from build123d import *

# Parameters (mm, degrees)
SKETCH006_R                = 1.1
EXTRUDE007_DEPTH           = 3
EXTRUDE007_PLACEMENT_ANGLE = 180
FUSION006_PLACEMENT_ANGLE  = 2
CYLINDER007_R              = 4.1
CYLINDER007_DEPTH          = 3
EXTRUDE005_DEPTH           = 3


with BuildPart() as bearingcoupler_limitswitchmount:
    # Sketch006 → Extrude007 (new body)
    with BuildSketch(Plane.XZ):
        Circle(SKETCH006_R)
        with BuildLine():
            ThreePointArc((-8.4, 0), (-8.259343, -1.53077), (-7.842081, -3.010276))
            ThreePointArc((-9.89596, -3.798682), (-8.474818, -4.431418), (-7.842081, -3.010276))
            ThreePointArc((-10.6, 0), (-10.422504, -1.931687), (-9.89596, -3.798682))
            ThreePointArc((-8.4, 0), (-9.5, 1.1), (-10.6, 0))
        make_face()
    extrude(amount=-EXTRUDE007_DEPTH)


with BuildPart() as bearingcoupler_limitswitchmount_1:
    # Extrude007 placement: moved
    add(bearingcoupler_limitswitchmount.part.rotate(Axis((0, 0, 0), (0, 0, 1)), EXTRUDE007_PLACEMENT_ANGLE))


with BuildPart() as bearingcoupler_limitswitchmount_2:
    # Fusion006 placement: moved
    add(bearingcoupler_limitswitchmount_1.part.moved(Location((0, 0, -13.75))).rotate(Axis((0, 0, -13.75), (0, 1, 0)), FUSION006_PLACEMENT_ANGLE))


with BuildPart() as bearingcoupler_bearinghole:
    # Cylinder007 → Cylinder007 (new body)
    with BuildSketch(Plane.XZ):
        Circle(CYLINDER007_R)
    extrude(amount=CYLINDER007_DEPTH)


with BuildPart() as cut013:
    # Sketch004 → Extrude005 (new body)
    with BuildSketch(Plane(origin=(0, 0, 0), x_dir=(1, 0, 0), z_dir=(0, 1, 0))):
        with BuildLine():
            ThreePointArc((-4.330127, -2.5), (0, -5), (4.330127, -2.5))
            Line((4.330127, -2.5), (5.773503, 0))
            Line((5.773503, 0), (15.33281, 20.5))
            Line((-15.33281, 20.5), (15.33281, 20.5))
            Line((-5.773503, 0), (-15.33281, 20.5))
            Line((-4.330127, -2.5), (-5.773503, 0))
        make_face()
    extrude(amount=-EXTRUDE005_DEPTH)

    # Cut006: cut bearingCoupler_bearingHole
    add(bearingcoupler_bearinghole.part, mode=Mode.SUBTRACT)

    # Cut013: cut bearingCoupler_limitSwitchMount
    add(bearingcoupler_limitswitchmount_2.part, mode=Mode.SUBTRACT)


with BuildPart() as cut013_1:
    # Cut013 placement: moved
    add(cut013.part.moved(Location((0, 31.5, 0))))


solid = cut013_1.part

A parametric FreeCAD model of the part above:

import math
import FreeCAD as App
import Part
import Sketcher
from FreeCAD import Vector
Q = App.Units.Quantity

doc = App.newDocument("Part")
params = doc.addObject("Spreadsheet::Sheet", "Params")
for row, (alias, value) in enumerate([
    ("sketch1_diameter", "2.2 mm"),
    ("sketch1_radius", "1.1 mm"),
    ("sketch1_radius2", "10.600001 mm"),
    ("sketch1_radius3", "1.1 mm"),
    ("pad1_length", "3 mm"),
    ("sketch2_diameter", "8.2 mm"),
    ("pad2_length", "3 mm"),
    ("sketch3_radius", "5 mm"),
    ("pad3_length", "3 mm"),
], start=1):
    params.set(f"A{row}", alias)
    params.set(f"B{row}", "=" + value)
    params.setAlias(f"B{row}", alias)

body = doc.addObject("PartDesign::Body", "Body")
body.AllowCompound = True

# Sketch on XZ plane
sketch1 = body.newObject("Sketcher::SketchObject", "Sketch")
sketch1.AttachmentSupport = (doc.getObject("XZ_Plane"), [""])
sketch1.MapMode = "FlatFace"
sketch1.addGeometry(Part.Circle(Vector(0, 0, 0), Vector(0, 0, 1), 1.1), False)
sketch1.addGeometry(Part.ArcOfCircle(Part.Circle(Vector(-0.00002, -0.000003, 0), Vector(0, 0, 1), 8.39998), math.radians(179.99998), math.radians(200.999922)), False)
sketch1.addGeometry(Part.ArcOfCircle(Part.Circle(Vector(-9.5, 0, 0), Vector(0, 0, 1), 1.1), math.radians(0), math.radians(180)), False)
sketch1.addGeometry(Part.ArcOfCircle(Part.Circle(Vector(0.000001, -0.000001, 0), Vector(0, 0, 1), 10.600001), math.radians(179.999995), math.radians(200.999886)), False)
sketch1.addGeometry(Part.ArcOfCircle(Part.Circle(Vector(-8.869021, -3.404478, 0), Vector(0, 0, 1), 1.1), math.radians(-159.00007), math.radians(20.999862)), False)
sketch1.addConstraint(Sketcher.Constraint("Coincident", 1, 1, 2, 1))
sketch1.addConstraint(Sketcher.Constraint("Coincident", 2, 2, 3, 1))
sketch1.addConstraint(Sketcher.Constraint("Coincident", 3, 2, 4, 1))
sketch1.addConstraint(Sketcher.Constraint("Coincident", 4, 2, 1, 2))
sketch1.addConstraint(Sketcher.Constraint("Coincident", 0, 3, -1, 1))
sketch1.addConstraint(Sketcher.Constraint("Coincident", 3, 3, -1, 1))
sketch1.addConstraint(Sketcher.Constraint("PointOnObject", 2, 3, -1))
sketch1.addConstraint(Sketcher.Constraint("PointOnObject", 1, 1, -1))
sketch1.addConstraint(Sketcher.Constraint("PointOnObject", 2, 2, -1))
sketch1.addConstraint(Sketcher.Constraint("Diameter", 0, Q("2.2 mm")))
sketch1.addConstraint(Sketcher.Constraint("Radius", 2, Q("1.1 mm")))
sketch1.addConstraint(Sketcher.Constraint("Radius", 3, Q("10.600001 mm")))
sketch1.addConstraint(Sketcher.Constraint("Radius", 4, Q("1.1 mm")))
sketch1.addConstraint(Sketcher.Constraint("Radius", 1, Q("8.39998 mm")))
sketch1.addConstraint(Sketcher.Constraint("DistanceX", 4, 3, 1, 3, Q("8.869001 mm")))
sketch1.addConstraint(Sketcher.Constraint("DistanceX", 3, 2, -1, 1, Q("9.89596 mm")))
sketch1.addConstraint(Sketcher.Constraint("DistanceX", 4, 2, -1, 1, Q("7.842081 mm")))
sketch1.setExpression("Constraints[9]", "Params.sketch1_diameter")
sketch1.setExpression("Constraints[10]", "Params.sketch1_radius")
sketch1.setExpression("Constraints[11]", "Params.sketch1_radius2")
sketch1.setExpression("Constraints[12]", "Params.sketch1_radius3")
pad1 = body.newObject("PartDesign::Pad", "Pad")
pad1.Profile = sketch1
pad1.setExpression("Length", "Params.pad1_length")
pad1.Reversed = True
body2 = doc.addObject("PartDesign::Body", "Body001")
body2.AllowCompound = True
doc.recompute()

body.Placement = App.Placement(Vector(0, 0, 0), App.Rotation(Vector(0, 0, 1), 180))
boolean = body2.newObject("PartDesign::Boolean", "Boolean")
boolean.Type = "Fuse"
boolean.addObjects([body])
body3 = doc.addObject("PartDesign::Body", "Body002")
body3.AllowCompound = True
doc.recompute()

body2.Placement = App.Placement(Vector(0, 0, -13.75), App.Rotation(Vector(0, 1, 0), 2))
boolean2 = body3.newObject("PartDesign::Boolean", "Boolean001")
boolean2.Type = "Fuse"
boolean2.addObjects([body2])
body4 = doc.addObject("PartDesign::Body", "Body003")

# Sketch on XZ plane
sketch2 = body4.newObject("Sketcher::SketchObject", "Sketch001")
sketch2.AttachmentSupport = (doc.getObject("XZ_Plane003"), [""])
sketch2.MapMode = "FlatFace"
sketch2.addGeometry(Part.Circle(Vector(0, 0, 0), Vector(0, 0, 1), 4.1), False)
sketch2.addConstraint(Sketcher.Constraint("Coincident", 0, 3, -1, 1))
sketch2.addConstraint(Sketcher.Constraint("Diameter", 0, Q("8.2 mm")))
sketch2.setExpression("Constraints[1]", "Params.sketch2_diameter")
pad2 = body4.newObject("PartDesign::Pad", "Pad001")
pad2.Profile = sketch2
pad2.setExpression("Length", "Params.pad2_length")
body5 = doc.addObject("PartDesign::Body", "Body004")

# Sketch on XZ plane
sketch3 = body5.newObject("Sketcher::SketchObject", "Sketch002")
sketch3.AttachmentSupport = (doc.getObject("XZ_Plane004"), [""])
sketch3.MapMode = "FlatFace"
sketch3.addGeometry(Part.ArcOfCircle(Part.Circle(Vector(0, 0, 0), Vector(0, 0, 1), 5), math.radians(30), math.radians(150)), False)
sketch3.addGeometry(Part.LineSegment(Vector(4.3, 2.5, 0), Vector(5.8, 0, 0)), False)
sketch3.addGeometry(Part.LineSegment(Vector(5.8, 0, 0), Vector(15.3, -20.5, 0)), False)
sketch3.addGeometry(Part.LineSegment(Vector(15.3, -20.5, 0), Vector(-15.3, -20.5, 0)), False)
sketch3.addGeometry(Part.LineSegment(Vector(-15.3, -20.5, 0), Vector(-5.8, 0, 0)), False)
sketch3.addGeometry(Part.LineSegment(Vector(-5.8, 0, 0), Vector(-4.3, 2.5, 0)), False)
sketch3.addConstraint(Sketcher.Constraint("Tangent", 0, 1, 1, 1))
sketch3.addConstraint(Sketcher.Constraint("Coincident", 1, 2, 2, 1))
sketch3.addConstraint(Sketcher.Constraint("Coincident", 2, 2, 3, 1))
sketch3.addConstraint(Sketcher.Constraint("Coincident", 3, 2, 4, 1))
sketch3.addConstraint(Sketcher.Constraint("Coincident", 4, 2, 5, 1))
sketch3.addConstraint(Sketcher.Constraint("Tangent", 5, 2, 0, 2))
sketch3.addConstraint(Sketcher.Constraint("Horizontal", 3))
sketch3.addConstraint(Sketcher.Constraint("Coincident", 0, 3, -1, 1))
sketch3.addConstraint(Sketcher.Constraint("Symmetric", 1, 2, 4, 2, -1, 1))
sketch3.addConstraint(Sketcher.Constraint("PointOnObject", 1, 2, -1))
sketch3.addConstraint(Sketcher.Constraint("Equal", 2, 4))
sketch3.addConstraint(Sketcher.Constraint("Radius", 0, Q("5 mm")))
sketch3.addConstraint(Sketcher.Constraint("Angle", 1, Q("-59.999994 deg")))
sketch3.addConstraint(Sketcher.Constraint("Angle", 2, Q("-65 deg")))
sketch3.addConstraint(Sketcher.Constraint("DistanceY", 2, 2, 0, 1, Q("23 mm")))
sketch3.setExpression("Constraints[11]", "Params.sketch3_radius")
pad3 = body5.newObject("PartDesign::Pad", "Pad002")
pad3.Profile = sketch3
pad3.setExpression("Length", "Params.pad3_length")
doc.recompute()

boolean3 = body5.newObject("PartDesign::Boolean", "Boolean002")
boolean3.Type = "Cut"
boolean3.addObjects([body4])
doc.recompute()

boolean4 = body5.newObject("PartDesign::Boolean", "Boolean003")
boolean4.Type = "Cut"
boolean4.addObjects([body3])
body6 = doc.addObject("PartDesign::Body", "Body005")
doc.recompute()

body5.Placement = App.Placement(Vector(0, 31.5, 0), App.Rotation(Vector(0, 0, 1), 0))
boolean5 = body6.newObject("PartDesign::Boolean", "Boolean004")
boolean5.Type = "Fuse"
boolean5.addObjects([body5])

doc.recompute()
